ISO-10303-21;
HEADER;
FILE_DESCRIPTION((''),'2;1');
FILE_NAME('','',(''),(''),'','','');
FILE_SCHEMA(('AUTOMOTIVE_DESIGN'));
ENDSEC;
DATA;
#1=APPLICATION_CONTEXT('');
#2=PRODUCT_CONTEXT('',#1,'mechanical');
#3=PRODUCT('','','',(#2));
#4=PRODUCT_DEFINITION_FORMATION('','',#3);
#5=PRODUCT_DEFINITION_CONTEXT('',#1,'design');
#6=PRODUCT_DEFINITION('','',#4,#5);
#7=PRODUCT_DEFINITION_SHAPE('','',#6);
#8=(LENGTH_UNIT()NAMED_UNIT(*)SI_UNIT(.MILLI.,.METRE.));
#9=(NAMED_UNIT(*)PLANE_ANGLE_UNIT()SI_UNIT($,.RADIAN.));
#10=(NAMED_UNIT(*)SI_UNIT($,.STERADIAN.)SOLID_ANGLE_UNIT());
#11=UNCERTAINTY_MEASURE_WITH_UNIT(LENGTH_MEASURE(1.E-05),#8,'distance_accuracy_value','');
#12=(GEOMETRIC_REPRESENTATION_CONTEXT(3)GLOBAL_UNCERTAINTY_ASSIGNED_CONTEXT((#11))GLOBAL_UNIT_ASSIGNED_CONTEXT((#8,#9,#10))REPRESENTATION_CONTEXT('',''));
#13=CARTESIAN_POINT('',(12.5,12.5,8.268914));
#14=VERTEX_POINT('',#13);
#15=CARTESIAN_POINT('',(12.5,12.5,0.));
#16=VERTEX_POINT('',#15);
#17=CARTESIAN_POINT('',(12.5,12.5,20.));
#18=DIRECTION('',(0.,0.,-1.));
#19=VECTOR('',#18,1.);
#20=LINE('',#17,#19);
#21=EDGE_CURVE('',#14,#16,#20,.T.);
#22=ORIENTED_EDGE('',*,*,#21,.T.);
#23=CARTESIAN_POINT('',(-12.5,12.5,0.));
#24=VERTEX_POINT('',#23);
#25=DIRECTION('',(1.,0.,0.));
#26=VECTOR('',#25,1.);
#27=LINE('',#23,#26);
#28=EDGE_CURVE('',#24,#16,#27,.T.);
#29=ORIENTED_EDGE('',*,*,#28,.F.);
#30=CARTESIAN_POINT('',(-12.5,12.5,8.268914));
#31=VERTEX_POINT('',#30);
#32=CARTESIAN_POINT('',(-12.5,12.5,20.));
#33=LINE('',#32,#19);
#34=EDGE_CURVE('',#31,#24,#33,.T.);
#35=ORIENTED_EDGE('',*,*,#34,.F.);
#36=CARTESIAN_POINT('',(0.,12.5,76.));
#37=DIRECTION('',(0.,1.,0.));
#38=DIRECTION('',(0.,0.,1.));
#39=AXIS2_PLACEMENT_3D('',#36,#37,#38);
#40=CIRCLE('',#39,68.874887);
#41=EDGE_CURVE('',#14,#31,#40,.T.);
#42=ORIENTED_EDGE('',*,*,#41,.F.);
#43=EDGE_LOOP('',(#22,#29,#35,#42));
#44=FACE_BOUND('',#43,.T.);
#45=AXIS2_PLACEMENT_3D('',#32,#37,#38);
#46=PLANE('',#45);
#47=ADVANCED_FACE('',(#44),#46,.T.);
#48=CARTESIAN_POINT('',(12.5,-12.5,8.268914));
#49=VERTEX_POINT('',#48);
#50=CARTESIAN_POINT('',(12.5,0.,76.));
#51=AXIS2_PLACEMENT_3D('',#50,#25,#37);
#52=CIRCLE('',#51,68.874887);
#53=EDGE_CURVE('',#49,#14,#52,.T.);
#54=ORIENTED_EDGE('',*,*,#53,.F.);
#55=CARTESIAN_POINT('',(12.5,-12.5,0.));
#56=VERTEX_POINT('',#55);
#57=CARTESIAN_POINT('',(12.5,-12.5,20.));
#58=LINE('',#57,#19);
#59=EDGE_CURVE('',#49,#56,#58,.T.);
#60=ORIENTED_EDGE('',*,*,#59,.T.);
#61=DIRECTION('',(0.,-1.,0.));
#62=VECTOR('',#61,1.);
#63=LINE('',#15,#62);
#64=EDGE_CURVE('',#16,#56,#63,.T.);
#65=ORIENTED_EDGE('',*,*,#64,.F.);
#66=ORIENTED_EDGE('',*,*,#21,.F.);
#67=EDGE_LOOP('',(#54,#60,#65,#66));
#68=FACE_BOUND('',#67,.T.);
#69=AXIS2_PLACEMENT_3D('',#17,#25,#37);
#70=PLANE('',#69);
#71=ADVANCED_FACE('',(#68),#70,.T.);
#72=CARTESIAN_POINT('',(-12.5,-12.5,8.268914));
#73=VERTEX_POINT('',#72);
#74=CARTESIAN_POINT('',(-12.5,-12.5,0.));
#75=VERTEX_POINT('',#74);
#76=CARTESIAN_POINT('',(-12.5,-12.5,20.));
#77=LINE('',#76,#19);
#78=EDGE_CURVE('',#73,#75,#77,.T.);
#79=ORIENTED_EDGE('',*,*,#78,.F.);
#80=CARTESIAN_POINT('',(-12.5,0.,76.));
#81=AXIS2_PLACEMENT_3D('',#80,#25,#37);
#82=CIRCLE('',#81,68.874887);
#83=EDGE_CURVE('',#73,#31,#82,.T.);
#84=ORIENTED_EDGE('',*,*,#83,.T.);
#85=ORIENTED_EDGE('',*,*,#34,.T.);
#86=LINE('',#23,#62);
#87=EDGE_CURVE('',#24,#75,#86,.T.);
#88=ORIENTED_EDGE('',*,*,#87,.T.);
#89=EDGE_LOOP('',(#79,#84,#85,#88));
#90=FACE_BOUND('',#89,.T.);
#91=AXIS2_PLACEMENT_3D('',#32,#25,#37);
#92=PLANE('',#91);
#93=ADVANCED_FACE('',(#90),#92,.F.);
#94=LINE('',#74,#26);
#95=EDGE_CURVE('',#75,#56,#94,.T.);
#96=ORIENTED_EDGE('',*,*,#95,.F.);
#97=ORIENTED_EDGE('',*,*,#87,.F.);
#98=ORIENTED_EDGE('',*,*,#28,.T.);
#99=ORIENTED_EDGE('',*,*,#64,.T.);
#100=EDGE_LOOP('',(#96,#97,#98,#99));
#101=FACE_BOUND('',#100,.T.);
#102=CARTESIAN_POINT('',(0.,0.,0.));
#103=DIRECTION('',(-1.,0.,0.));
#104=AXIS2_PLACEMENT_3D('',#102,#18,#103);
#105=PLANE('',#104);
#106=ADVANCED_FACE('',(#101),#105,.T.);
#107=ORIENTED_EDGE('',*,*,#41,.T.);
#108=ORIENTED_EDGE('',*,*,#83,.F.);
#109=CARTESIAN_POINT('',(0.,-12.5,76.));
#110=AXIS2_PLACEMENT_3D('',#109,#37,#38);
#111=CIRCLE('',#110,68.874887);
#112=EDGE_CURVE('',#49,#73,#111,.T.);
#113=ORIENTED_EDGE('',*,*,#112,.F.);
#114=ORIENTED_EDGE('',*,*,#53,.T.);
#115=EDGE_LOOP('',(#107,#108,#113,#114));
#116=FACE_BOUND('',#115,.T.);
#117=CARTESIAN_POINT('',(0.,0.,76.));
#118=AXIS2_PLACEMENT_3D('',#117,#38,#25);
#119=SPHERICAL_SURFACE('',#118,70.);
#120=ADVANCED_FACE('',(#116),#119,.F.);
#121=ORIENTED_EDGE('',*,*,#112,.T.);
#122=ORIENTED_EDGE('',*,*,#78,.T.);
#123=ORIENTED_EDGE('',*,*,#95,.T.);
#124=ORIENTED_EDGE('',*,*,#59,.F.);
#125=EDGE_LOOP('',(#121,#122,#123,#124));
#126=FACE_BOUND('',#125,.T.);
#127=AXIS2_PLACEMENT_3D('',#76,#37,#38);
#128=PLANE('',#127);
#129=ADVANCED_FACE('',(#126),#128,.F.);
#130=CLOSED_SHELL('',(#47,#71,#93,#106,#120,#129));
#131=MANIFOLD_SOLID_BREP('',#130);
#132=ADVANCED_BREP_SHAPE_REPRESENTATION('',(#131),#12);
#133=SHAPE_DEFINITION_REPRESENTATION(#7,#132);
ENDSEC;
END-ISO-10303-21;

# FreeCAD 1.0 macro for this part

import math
import FreeCAD as App
import Part
import Sketcher

V = App.Vector

doc = App.newDocument("Part")
body = doc.addObject("PartDesign::Body", "Body")

sketch1 = doc.addObject("Sketcher::SketchObject", "Sketch")
body.addObject(sketch1)
sketch1.AttachmentSupport = (doc.XY_Plane, [""])
sketch1.MapMode = "FlatFace"
sketch1.addGeometry([
    Part.LineSegment(V(-12.5, 12.5, 0), V(-12.5, -12.5, 0)),
    Part.LineSegment(V(-12.5, -12.5, 0), V(12.5, -12.5, 0)),
    Part.LineSegment(V(12.5, -12.5, 0), V(12.5, 12.5, 0)),
    Part.LineSegment(V(12.5, 12.5, 0), V(-12.5, 12.5, 0)),
], False)
sketch1.addConstraint([
    Sketcher.Constraint("Coincident", 0, 2, 1, 1),
    Sketcher.Constraint("Coincident", 1, 2, 2, 1),
    Sketcher.Constraint("Coincident", 2, 2, 3, 1),
    Sketcher.Constraint("Coincident", 3, 2, 0, 1),
    Sketcher.Constraint("Vertical", 0),
    Sketcher.Constraint("Horizontal", 1),
    Sketcher.Constraint("Vertical", 2),
    Sketcher.Constraint("Horizontal", 3),
    Sketcher.Constraint("Symmetric", 0, 2, 2, 2, -1, 1),
    Sketcher.Constraint("Equal", 3, 0),
    Sketcher.Constraint("DistanceX", 1, 1, 1, 2, 25.0),
])
pad1 = doc.addObject("PartDesign::Pad", "Pad")
body.addObject(pad1)
pad1.Profile = sketch1
pad1.Length = 20

sketch2 = doc.addObject("Sketcher::SketchObject", "Sketch001")
body.addObject(sketch2)
sketch2.AttachmentSupport = (doc.XZ_Plane, [""])
sketch2.MapMode = "FlatFace"
sketch2.addGeometry([
    Part.LineSegment(V(0, 60.398269, 0), V(68.239182, 60.398269, 0)),
    Part.ArcOfCircle(Part.Circle(V(0, 76, 0), V(0, 0, 1), 70), math.radians(-90), math.radians(-12.878355)),
    Part.LineSegment(V(0, 6, 0), V(0, 60.398269, 0)),
], False)
sketch2.addConstraint([
    Sketcher.Constraint("Coincident", 0, 2, 1, 2),
    Sketcher.Constraint("Coincident", 1, 1, 2, 1),
    Sketcher.Constraint("Coincident", 2, 2, 0, 1),
    Sketcher.Constraint("Horizontal", 0),
    Sketcher.Constraint("Vertical", 2),
    Sketcher.Constraint("PointOnObject", 1, 3, -2),
    Sketcher.Constraint("PointOnObject", 1, 1, -2),
    Sketcher.Constraint("Radius", 1, 70.0),
    Sketcher.Constraint("DistanceY", -1, 1, 1, 3, 76.0),
    Sketcher.Constraint("DistanceY", 2, 1, 2, 2, 54.398269),
])
groove = doc.addObject("PartDesign::Groove", "Groove")
body.addObject(groove)
groove.Profile = sketch2
groove.ReferenceAxis = (sketch2, ["V_Axis"])
groove.Angle = 360

doc.recompute()
